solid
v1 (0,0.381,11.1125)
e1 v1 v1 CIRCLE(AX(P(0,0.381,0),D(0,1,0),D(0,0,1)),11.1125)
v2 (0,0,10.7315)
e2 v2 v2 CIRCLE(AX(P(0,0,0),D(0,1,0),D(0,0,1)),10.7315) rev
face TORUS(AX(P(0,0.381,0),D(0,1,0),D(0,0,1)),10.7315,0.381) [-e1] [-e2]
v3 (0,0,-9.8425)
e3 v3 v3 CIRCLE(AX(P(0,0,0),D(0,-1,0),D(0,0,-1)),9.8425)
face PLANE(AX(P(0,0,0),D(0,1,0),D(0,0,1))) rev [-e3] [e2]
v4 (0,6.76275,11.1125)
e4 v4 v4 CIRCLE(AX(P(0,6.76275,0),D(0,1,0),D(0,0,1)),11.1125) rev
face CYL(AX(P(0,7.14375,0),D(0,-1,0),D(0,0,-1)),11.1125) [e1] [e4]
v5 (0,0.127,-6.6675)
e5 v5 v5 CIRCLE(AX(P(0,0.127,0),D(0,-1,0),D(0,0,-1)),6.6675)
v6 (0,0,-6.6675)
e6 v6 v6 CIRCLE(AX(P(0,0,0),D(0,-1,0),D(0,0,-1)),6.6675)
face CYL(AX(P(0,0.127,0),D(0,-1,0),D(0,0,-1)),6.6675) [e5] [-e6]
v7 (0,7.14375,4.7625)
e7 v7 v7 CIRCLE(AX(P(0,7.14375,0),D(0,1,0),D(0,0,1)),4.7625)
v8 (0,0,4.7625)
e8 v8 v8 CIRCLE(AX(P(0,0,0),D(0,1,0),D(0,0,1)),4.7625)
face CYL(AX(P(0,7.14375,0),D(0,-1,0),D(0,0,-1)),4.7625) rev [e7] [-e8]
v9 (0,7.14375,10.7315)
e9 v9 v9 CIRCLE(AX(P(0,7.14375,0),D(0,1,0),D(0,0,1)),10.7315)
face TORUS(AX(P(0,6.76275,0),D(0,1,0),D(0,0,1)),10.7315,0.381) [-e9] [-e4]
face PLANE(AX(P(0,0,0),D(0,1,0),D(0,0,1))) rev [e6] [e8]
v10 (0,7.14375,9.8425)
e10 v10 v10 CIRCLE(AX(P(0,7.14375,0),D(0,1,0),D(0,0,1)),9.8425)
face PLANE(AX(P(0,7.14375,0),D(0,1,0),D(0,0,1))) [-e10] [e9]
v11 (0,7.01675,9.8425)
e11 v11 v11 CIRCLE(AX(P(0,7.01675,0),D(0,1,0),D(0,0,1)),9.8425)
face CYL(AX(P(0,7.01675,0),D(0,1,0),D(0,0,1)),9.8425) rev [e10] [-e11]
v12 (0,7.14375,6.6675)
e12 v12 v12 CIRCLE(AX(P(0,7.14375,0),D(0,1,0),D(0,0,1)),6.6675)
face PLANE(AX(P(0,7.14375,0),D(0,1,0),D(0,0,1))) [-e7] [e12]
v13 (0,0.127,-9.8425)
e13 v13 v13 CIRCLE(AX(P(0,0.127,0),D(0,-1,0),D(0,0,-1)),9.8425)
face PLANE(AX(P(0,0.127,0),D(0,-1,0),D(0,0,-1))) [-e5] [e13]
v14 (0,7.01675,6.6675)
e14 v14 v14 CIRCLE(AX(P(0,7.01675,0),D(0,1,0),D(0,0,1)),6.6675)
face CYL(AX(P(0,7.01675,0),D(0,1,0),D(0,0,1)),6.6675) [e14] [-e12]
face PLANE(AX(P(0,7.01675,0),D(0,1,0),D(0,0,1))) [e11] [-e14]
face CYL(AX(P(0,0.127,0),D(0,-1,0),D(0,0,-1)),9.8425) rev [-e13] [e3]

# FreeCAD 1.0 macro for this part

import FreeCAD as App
import Part
import Sketcher

V = App.Vector
Q = App.Units.Quantity


def edges_at(feature, points):
    """Names of the edges that pass closest to the given points."""
    edges = feature.Shape.Edges
    near = lambda p: min(range(len(edges)), key=lambda i: edges[i].distToShape(Part.Vertex(*p))[0])
    return sorted({f"Edge{near(p) + 1}" for p in points})

doc = App.newDocument("Part")
body = doc.addObject("PartDesign::Body", "Body")

# Sketch on XZ plane
sketch1 = body.newObject("Sketcher::SketchObject", "Sketch")
sketch1.AttachmentSupport = (doc.getObject("XZ_Plane"), [""])
sketch1.MapMode = "FlatFace"
sketch1.addGeometry([
    Part.Circle(V(0, 0, 0), V(0, 0, 1), 11.1),
    Part.Circle(V(0, 0, 0), V(0, 0, 1), 4.8),
], False)
sketch1.addConstraint([
    Sketcher.Constraint("Coincident", 0, 3, -1, 1),
    Sketcher.Constraint("Coincident", 1, 3, -1, 1),
    Sketcher.Constraint("Diameter", 0, Q("0.875 in")),
    Sketcher.Constraint("Diameter", 1, Q("0.375 in")),
])
pad1 = body.newObject("PartDesign::Pad", "Pad")
pad1.Profile = sketch1
pad1.Length = Q("0.28125 in")
pad1.Reversed = True

# Sketch on XZ plane
sketch2 = body.newObject("Sketcher::SketchObject", "Sketch001")
sketch2.AttachmentSupport = (doc.getObject("XZ_Plane"), [""])
sketch2.MapMode = "FlatFace"
sketch2.AttachmentOffset = App.Placement(V(0, 0, -0.28125 * 25.4), App.Rotation())
sketch2.addGeometry([
    Part.Circle(V(0, 0, 0), V(0, 0, 1), 10),
    Part.Circle(V(0, 0, 0), V(0, 0, 1), 7),
], False)
sketch2.addConstraint([
    Sketcher.Constraint("Coincident", 0, 3, -1, 1),
    Sketcher.Constraint("Coincident", 1, 3, -1, 1),
    Sketcher.Constraint("Diameter", 0, Q("0.775 in")),
    Sketcher.Constraint("Diameter", 1, Q("0.525 in")),
])
pocket1 = body.newObject("PartDesign::Pocket", "Pocket")
pocket1.Profile = sketch2
pocket1.Length = Q("0.005 in")
pocket1.Reversed = True

# Sketch on XZ plane
sketch3 = body.newObject("Sketcher::SketchObject", "Sketch002")
sketch3.AttachmentSupport = (doc.getObject("XZ_Plane"), [""])
sketch3.MapMode = "FlatFace"
sketch3.addGeometry([
    Part.Circle(V(0, 0, 0), V(0, 0, 1), 10),
    Part.Circle(V(0, 0, 0), V(0, 0, 1), 7),
], False)
sketch3.addConstraint([
    Sketcher.Constraint("Coincident", 0, 3, -1, 1),
    Sketcher.Constraint("Coincident", 1, 3, -1, 1),
    Sketcher.Constraint("Diameter", 0, Q("0.775 in")),
    Sketcher.Constraint("Diameter", 1, Q("0.525 in")),
])
pocket2 = body.newObject("PartDesign::Pocket", "Pocket001")
pocket2.Profile = sketch3
pocket2.Length = Q("0.005 in")
doc.recompute()

fillet = body.newObject("PartDesign::Fillet", "Fillet")
fillet.Base = (pocket2, edges_at(pocket2, [(-11.113, 0, 0), (-11.113, 7.144, 0)]))
fillet.Radius = Q("0.015 in")

doc.recompute()
